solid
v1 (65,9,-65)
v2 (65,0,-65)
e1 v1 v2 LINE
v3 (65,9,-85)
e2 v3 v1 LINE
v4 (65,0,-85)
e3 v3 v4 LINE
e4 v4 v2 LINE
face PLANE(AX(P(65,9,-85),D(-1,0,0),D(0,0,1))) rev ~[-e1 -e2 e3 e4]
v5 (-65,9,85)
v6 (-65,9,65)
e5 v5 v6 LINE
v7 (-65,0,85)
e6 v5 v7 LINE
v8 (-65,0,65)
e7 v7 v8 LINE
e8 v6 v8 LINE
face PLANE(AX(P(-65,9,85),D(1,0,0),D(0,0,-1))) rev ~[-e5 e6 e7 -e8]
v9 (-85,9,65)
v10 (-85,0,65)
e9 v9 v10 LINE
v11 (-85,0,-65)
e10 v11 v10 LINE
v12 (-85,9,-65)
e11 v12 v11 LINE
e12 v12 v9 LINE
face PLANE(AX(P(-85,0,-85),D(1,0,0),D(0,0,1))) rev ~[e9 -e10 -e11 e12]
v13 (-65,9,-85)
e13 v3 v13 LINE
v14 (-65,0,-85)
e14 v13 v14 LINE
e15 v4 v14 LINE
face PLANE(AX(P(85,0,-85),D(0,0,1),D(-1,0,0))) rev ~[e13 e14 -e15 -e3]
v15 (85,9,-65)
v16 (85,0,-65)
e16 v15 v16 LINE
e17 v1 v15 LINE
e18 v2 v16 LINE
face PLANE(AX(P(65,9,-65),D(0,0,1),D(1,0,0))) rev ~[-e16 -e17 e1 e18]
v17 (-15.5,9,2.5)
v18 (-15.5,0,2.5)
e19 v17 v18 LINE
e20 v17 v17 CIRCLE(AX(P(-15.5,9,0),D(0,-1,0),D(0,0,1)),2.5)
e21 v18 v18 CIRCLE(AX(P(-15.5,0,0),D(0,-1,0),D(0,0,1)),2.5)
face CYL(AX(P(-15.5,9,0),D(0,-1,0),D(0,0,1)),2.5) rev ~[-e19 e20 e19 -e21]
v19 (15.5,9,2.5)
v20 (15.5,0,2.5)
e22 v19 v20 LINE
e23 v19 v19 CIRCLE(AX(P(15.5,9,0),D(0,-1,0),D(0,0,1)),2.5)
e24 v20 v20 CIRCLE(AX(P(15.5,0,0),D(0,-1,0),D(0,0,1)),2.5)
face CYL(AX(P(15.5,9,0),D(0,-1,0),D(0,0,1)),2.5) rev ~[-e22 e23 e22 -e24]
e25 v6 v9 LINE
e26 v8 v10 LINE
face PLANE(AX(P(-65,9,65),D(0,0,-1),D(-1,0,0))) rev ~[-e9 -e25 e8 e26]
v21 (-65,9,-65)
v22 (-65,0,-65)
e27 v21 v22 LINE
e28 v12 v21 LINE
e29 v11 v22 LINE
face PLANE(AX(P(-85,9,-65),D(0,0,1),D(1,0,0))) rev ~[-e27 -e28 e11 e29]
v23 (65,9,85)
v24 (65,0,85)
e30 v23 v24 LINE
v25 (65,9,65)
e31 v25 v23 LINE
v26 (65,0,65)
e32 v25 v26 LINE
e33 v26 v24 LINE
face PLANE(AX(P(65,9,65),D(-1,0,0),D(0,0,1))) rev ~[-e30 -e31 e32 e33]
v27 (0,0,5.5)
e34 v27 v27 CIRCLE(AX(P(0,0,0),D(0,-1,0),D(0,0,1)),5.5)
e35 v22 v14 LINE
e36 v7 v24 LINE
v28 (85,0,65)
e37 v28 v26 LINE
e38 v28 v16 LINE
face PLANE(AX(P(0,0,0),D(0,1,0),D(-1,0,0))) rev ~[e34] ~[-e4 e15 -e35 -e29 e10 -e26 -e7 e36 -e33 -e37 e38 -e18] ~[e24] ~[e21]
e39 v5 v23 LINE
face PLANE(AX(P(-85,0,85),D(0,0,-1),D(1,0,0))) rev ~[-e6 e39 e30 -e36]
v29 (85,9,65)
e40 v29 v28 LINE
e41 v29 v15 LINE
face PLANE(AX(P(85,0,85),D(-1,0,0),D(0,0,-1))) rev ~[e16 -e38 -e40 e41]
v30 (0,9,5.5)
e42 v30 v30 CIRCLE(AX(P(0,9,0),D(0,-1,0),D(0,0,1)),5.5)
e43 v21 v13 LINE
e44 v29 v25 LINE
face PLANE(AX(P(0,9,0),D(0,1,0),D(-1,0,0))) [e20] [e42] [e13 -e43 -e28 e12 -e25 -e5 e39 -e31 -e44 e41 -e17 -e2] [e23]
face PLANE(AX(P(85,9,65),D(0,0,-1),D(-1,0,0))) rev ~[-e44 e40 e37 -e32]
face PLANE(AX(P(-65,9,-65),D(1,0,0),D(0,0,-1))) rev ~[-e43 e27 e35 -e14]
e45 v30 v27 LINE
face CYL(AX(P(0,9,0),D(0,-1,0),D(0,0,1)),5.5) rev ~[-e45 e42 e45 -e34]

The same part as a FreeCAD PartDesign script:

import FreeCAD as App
import Part
import Sketcher

V = App.Vector

doc = App.newDocument("Part")
body = doc.addObject("PartDesign::Body", "Body")

# Sketch on XZ plane
sketch1 = body.newObject("Sketcher::SketchObject", "Sketch")
sketch1.AttachmentSupport = (doc.getObject("XZ_Plane"), [""])
sketch1.MapMode = "FlatFace"
sketch1.addGeometry(Part.LineSegment(V(-85, -85, 0), V(-85, 85, 0)), False)
sketch1.addGeometry(Part.LineSegment(V(-85, 85, 0), V(85, 85, 0)), False)
sketch1.addGeometry(Part.LineSegment(V(85, 85, 0), V(85, -85, 0)), False)
sketch1.addGeometry(Part.LineSegment(V(85, -85, 0), V(-85, -85, 0)), False)
sketch1.addConstraint(Sketcher.Constraint("Coincident", 0, 2, 1, 1))
sketch1.addConstraint(Sketcher.Constraint("Coincident", 1, 2, 2, 1))
sketch1.addConstraint(Sketcher.Constraint("Coincident", 2, 2, 3, 1))
sketch1.addConstraint(Sketcher.Constraint("Coincident", 3, 2, 0, 1))
sketch1.addConstraint(Sketcher.Constraint("Vertical", 0))
sketch1.addConstraint(Sketcher.Constraint("Horizontal", 1))
sketch1.addConstraint(Sketcher.Constraint("Vertical", 2))
sketch1.addConstraint(Sketcher.Constraint("Horizontal", 3))
sketch1.addConstraint(Sketcher.Constraint("Symmetric", 0, 2, 2, 2, -1, 1))
sketch1.addConstraint(Sketcher.Constraint("Equal", 3, 0))
sketch1.addConstraint(Sketcher.Constraint("DistanceX", 1, 1, 1, 2, 170.0))
pad1 = body.newObject("PartDesign::Pad", "Pad")
pad1.Profile = sketch1
pad1.Length = 9
pad1.Reversed = True

# Sketch on XZ plane
sketch2 = body.newObject("Sketcher::SketchObject", "Sketch001")
sketch2.AttachmentSupport = (doc.getObject("XZ_Plane"), [""])
sketch2.MapMode = "FlatFace"
sketch2.AttachmentOffset = App.Placement(V(0, 0, -9), App.Rotation())
sketch2.addGeometry(Part.LineSegment(V(-65, 65, 0), V(-85, 65, 0)), False)
sketch2.addGeometry(Part.LineSegment(V(-85, 65, 0), V(-85, 85, 0)), False)
sketch2.addGeometry(Part.LineSegment(V(-85, 85, 0), V(-65, 85, 0)), False)
sketch2.addGeometry(Part.LineSegment(V(-65, 85, 0), V(-65, 65, 0)), False)
sketch2.addConstraint(Sketcher.Constraint("Coincident", 0, 2, 1, 1))
sketch2.addConstraint(Sketcher.Constraint("Coincident", 1, 2, 2, 1))
sketch2.addConstraint(Sketcher.Constraint("Coincident", 2, 2, 3, 1))
sketch2.addConstraint(Sketcher.Constraint("Coincident", 3, 2, 0, 1))
sketch2.addConstraint(Sketcher.Constraint("Horizontal", 0))
sketch2.addConstraint(Sketcher.Constraint("Vertical", 1))
sketch2.addConstraint(Sketcher.Constraint("Horizontal", 2))
sketch2.addConstraint(Sketcher.Constraint("Vertical", 3))
sketch2.addConstraint(Sketcher.Constraint("Equal", 2, 1))
sketch2.addConstraint(Sketcher.Constraint("DistanceX", 0, 2, 0, 1, 20.0))
sketch2.addConstraint(Sketcher.Constraint("DistanceX", 0, 2, -1, 1, 85.0))
sketch2.addConstraint(Sketcher.Constraint("DistanceY", -1, 1, 0, 2, 65.0))
pocket1 = body.newObject("PartDesign::Pocket", "Pocket")
pocket1.Profile = sketch2
pocket1.Type = "ThroughAll"
pocket1.Reversed = True
doc.recompute()

polarpattern = body.newObject("PartDesign::PolarPattern", "PolarPattern")
polarpattern.Originals = [pocket1]
polarpattern.Axis = (doc.getObject("Y_Axis"), [""])
polarpattern.Angle = 360
polarpattern.Occurrences = 4
body.Tip = polarpattern

# Sketch on XZ plane
sketch3 = body.newObject("Sketcher::SketchObject", "Sketch002")
sketch3.AttachmentSupport = (doc.getObject("XZ_Plane"), [""])
sketch3.MapMode = "FlatFace"
sketch3.AttachmentOffset = App.Placement(V(0, 0, -9), App.Rotation())
sketch3.addGeometry(Part.Circle(V(0, 0, 0), V(0, 0, 1), 5.5), False)
sketch3.addConstraint(Sketcher.Constraint("Coincident", 0, 3, -1, 1))
sketch3.addConstraint(Sketcher.Constraint("Diameter", 0, 11.0))
doc.recompute()
hole = body.newObject("PartDesign::Hole", "Hole")
hole.Profile = sketch3
hole.ThreadType = "None"
hole.Diameter = 11
hole.DepthType = "ThroughAll"
hole.Reversed = True

# Sketch on XZ plane
sketch4 = body.newObject("Sketcher::SketchObject", "Sketch003")
sketch4.AttachmentSupport = (doc.getObject("XZ_Plane"), [""])
sketch4.MapMode = "FlatFace"
sketch4.AttachmentOffset = App.Placement(V(0, 0, -9), App.Rotation())
sketch4.addGeometry(Part.Circle(V(-15.5, 0, 0), V(0, 0, 1), 2.5), False)
sketch4.addGeometry(Part.Circle(V(15.5, 0, 0), V(0, 0, 1), 2.5), False)
sketch4.addConstraint(Sketcher.Constraint("Equal", 0, 1))
sketch4.addConstraint(Sketcher.Constraint("Symmetric", 0, 3, 1, 3, -1, 1))
sketch4.addConstraint(Sketcher.Constraint("PointOnObject", 0, 3, -1))
sketch4.addConstraint(Sketcher.Constraint("Diameter", 0, 5.0))
sketch4.addConstraint(Sketcher.Constraint("DistanceX", 0, 3, 1, 3, 31.0))
doc.recompute()
hole2 = body.newObject("PartDesign::Hole", "Hole001")
hole2.Profile = sketch4
hole2.ThreadType = "None"
hole2.Diameter = 5
hole2.DepthType = "ThroughAll"
hole2.Reversed = True

doc.recompute()
